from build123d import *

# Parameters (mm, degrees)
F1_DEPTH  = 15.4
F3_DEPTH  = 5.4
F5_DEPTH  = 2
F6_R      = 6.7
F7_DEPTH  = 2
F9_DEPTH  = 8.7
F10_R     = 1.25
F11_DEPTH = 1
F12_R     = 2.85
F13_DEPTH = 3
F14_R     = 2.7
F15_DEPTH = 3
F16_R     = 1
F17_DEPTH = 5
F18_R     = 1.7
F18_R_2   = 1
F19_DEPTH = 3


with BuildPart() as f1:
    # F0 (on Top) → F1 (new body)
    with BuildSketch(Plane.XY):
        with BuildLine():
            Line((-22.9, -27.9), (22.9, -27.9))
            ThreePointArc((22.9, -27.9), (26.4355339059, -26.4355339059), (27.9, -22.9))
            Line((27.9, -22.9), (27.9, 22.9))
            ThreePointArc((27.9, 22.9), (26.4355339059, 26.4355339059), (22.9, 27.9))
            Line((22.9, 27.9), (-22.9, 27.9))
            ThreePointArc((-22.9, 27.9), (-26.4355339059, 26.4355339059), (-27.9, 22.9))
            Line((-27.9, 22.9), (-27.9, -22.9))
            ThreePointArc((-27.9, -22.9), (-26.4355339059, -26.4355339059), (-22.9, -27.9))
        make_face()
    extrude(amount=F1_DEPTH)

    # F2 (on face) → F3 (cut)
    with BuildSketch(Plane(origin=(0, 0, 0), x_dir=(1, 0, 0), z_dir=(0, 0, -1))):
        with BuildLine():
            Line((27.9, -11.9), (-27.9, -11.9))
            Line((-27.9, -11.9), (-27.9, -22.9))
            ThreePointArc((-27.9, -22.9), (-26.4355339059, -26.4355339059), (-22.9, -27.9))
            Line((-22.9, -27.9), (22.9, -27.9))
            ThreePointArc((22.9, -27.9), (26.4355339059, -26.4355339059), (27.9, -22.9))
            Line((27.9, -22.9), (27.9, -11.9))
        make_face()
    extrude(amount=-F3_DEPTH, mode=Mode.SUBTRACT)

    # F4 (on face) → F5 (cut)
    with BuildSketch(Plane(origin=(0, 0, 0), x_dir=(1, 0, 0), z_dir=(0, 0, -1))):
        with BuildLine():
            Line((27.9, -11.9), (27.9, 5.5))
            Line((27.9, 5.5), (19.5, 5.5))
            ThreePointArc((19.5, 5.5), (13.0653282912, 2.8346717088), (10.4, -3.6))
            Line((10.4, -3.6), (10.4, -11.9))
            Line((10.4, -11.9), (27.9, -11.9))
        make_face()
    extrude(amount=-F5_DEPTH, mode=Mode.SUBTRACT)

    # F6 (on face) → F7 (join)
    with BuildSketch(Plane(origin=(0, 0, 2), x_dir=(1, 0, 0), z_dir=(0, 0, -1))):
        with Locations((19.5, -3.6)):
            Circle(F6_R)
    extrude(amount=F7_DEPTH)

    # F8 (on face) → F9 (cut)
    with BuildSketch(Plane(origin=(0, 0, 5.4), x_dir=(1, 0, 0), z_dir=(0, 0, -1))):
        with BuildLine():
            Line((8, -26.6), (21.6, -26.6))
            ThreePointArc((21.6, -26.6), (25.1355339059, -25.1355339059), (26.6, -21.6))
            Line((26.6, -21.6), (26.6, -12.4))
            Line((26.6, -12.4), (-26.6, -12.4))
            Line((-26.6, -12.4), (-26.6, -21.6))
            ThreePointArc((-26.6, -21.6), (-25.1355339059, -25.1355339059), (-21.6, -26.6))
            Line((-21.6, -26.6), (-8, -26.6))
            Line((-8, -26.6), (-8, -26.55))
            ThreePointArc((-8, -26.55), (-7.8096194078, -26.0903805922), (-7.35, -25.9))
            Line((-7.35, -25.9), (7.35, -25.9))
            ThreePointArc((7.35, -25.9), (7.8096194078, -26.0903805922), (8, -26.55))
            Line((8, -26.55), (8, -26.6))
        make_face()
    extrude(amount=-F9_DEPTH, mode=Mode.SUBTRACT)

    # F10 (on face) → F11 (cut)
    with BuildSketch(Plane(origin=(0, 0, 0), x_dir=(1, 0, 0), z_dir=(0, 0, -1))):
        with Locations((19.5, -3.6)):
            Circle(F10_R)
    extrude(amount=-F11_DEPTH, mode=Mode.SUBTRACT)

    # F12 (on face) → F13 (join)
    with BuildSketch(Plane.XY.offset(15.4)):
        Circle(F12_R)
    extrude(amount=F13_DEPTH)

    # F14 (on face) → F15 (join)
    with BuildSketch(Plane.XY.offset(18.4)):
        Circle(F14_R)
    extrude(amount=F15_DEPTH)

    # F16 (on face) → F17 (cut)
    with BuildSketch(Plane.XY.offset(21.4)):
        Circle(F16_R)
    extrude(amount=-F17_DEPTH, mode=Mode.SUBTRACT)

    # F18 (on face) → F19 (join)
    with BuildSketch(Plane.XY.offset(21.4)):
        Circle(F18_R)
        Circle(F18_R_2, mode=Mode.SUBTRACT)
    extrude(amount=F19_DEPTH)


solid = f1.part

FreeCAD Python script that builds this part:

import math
import FreeCAD as App
import Part
import Sketcher
Q = App.Units.Quantity

doc = App.newDocument("Part")
body = doc.addObject("PartDesign::Body", "Body")

sketch1 = body.newObject("Sketcher::SketchObject", "Sketch")
sketch1.AttachmentSupport = (doc.getObject("XY_Plane"), [""])
sketch1.MapMode = "FlatFace"
sketch1.addGeometry(Part.LineSegment(App.Vector(-23, -28, 0), App.Vector(23, -28, 0)), False)
sketch1.addGeometry(Part.ArcOfCircle(Part.Circle(App.Vector(23, -23, 0), App.Vector(0, 0, 1), 5), math.radians(-90), math.radians(0)), False)
sketch1.addGeometry(Part.LineSegment(App.Vector(28, -23, 0), App.Vector(28, 23, 0)), False)
sketch1.addGeometry(Part.ArcOfCircle(Part.Circle(App.Vector(23, 23, 0), App.Vector(0, 0, 1), 5), math.radians(0), math.radians(90)), False)
sketch1.addGeometry(Part.LineSegment(App.Vector(23, 28, 0), App.Vector(-23, 28, 0)), False)
sketch1.addGeometry(Part.ArcOfCircle(Part.Circle(App.Vector(-23, 23, 0), App.Vector(0, 0, 1), 5), math.radians(90), math.radians(180)), False)
sketch1.addGeometry(Part.LineSegment(App.Vector(-28, 23, 0), App.Vector(-28, -23, 0)), False)
sketch1.addGeometry(Part.ArcOfCircle(Part.Circle(App.Vector(-23, -23, 0), App.Vector(0, 0, 1), 5), math.radians(180), math.radians(270)), False)
sketch1.addConstraint(Sketcher.Constraint("Tangent", 0, 2, 1, 1))
sketch1.addConstraint(Sketcher.Constraint("Tangent", 1, 2, 2, 1))
sketch1.addConstraint(Sketcher.Constraint("Tangent", 2, 2, 3, 1))
sketch1.addConstraint(Sketcher.Constraint("Tangent", 3, 2, 4, 1))
sketch1.addConstraint(Sketcher.Constraint("Tangent", 4, 2, 5, 1))
sketch1.addConstraint(Sketcher.Constraint("Tangent", 5, 2, 6, 1))
sketch1.addConstraint(Sketcher.Constraint("Tangent", 6, 2, 7, 1))
sketch1.addConstraint(Sketcher.Constraint("Tangent", 7, 2, 0, 1))
sketch1.addConstraint(Sketcher.Constraint("Horizontal", 0))
sketch1.addConstraint(Sketcher.Constraint("Vertical", 2))
sketch1.addConstraint(Sketcher.Constraint("Horizontal", 4))
sketch1.addConstraint(Sketcher.Constraint("Vertical", 6))
sketch1.addConstraint(Sketcher.Constraint("Equal", 1, 3))
sketch1.addConstraint(Sketcher.Constraint("Equal", 3, 5))
sketch1.addConstraint(Sketcher.Constraint("Equal", 5, 7))
sketch1.addConstraint(Sketcher.Constraint("Symmetric", 1, 3, 5, 3, -1, 1))
sketch1.addConstraint(Sketcher.Constraint("Equal", 4, 2))
sketch1.addConstraint(Sketcher.Constraint("Radius", 1, Q("5 mm")))
sketch1.addConstraint(Sketcher.Constraint("DistanceX", 0, 1, 0, 2, Q("45.8 mm")))
pad1 = body.newObject("PartDesign::Pad", "Pad")
pad1.Profile = sketch1
pad1.Length = 15.4

sketch2 = body.newObject("Sketcher::SketchObject", "Sketch001")
sketch2.AttachmentSupport = (doc.getObject("XY_Plane"), [""])
sketch2.MapMode = "FlatFace"
sketch2.addGeometry(Part.LineSegment(App.Vector(28, 12, 0), App.Vector(-28, 12, 0)), False)
sketch2.addGeometry(Part.LineSegment(App.Vector(-28, 12, 0), App.Vector(-28, 23, 0)), False)
sketch2.addGeometry(Part.ArcOfCircle(Part.Circle(App.Vector(-23, 23, 0), App.Vector(0, 0, 1), 5), math.radians(90), math.radians(180)), False)
sketch2.addGeometry(Part.LineSegment(App.Vector(-23, 28, 0), App.Vector(23, 28, 0)), False)
sketch2.addGeometry(Part.ArcOfCircle(Part.Circle(App.Vector(23, 23, 0), App.Vector(0, 0, 1), 5), math.radians(0), math.radians(90)), False)
sketch2.addGeometry(Part.LineSegment(App.Vector(28, 23, 0), App.Vector(28, 12, 0)), False)
sketch2.addConstraint(Sketcher.Constraint("Coincident", 0, 2, 1, 1))
sketch2.addConstraint(Sketcher.Constraint("Tangent", 1, 2, 2, 2))
sketch2.addConstraint(Sketcher.Constraint("Tangent", 2, 1, 3, 1))
sketch2.addConstraint(Sketcher.Constraint("Tangent", 3, 2, 4, 2))
sketch2.addConstraint(Sketcher.Constraint("Tangent", 4, 1, 5, 1))
sketch2.addConstraint(Sketcher.Constraint("Coincident", 5, 2, 0, 1))
sketch2.addConstraint(Sketcher.Constraint("Horizontal", 0))
sketch2.addConstraint(Sketcher.Constraint("Vertical", 1))
sketch2.addConstraint(Sketcher.Constraint("Horizontal", 3))
sketch2.addConstraint(Sketcher.Constraint("Vertical", 5))
sketch2.addConstraint(Sketcher.Constraint("Equal", 2, 4))
sketch2.addConstraint(Sketcher.Constraint("Radius", 2, Q("5 mm")))
sketch2.addConstraint(Sketcher.Constraint("DistanceY", 1, 1, 1, 2, Q("11 mm")))
sketch2.addConstraint(Sketcher.Constraint("DistanceX", 0, 2, 0, 1, Q("55.8 mm")))
sketch2.addConstraint(Sketcher.Constraint("DistanceX", 2, 3, -1, 1, Q("22.9 mm")))
sketch2.addConstraint(Sketcher.Constraint("DistanceY", -1, 1, 2, 3, Q("22.9 mm")))
pocket1 = body.newObject("PartDesign::Pocket", "Pocket")
pocket1.Profile = sketch2
pocket1.Length = 5.4
pocket1.Reversed = True

sketch3 = body.newObject("Sketcher::SketchObject", "Sketch002")
sketch3.AttachmentSupport = (doc.getObject("XY_Plane"), [""])
sketch3.MapMode = "FlatFace"
sketch3.addGeometry(Part.LineSegment(App.Vector(28, 12, 0), App.Vector(28, -6, 0)), False)
sketch3.addGeometry(Part.LineSegment(App.Vector(28, -6, 0), App.Vector(20, -6, 0)), False)
sketch3.addGeometry(Part.ArcOfCircle(Part.Circle(App.Vector(20, 4, 0), App.Vector(0, 0, 1), 9), math.radians(180), math.radians(270)), False)
sketch3.addGeometry(Part.LineSegment(App.Vector(10, 4, 0), App.Vector(10, 12, 0)), False)
sketch3.addGeometry(Part.LineSegment(App.Vector(10, 12, 0), App.Vector(28, 12, 0)), False)
sketch3.addConstraint(Sketcher.Constraint("Coincident", 0, 2, 1, 1))
sketch3.addConstraint(Sketcher.Constraint("Tangent", 1, 2, 2, 2))
sketch3.addConstraint(Sketcher.Constraint("Tangent", 2, 1, 3, 1))
sketch3.addConstraint(Sketcher.Constraint("Coincident", 3, 2, 4, 1))
sketch3.addConstraint(Sketcher.Constraint("Coincident", 4, 2, 0, 1))
sketch3.addConstraint(Sketcher.Constraint("Vertical", 0))
sketch3.addConstraint(Sketcher.Constraint("Horizontal", 1))
sketch3.addConstraint(Sketcher.Constraint("Vertical", 3))
sketch3.addConstraint(Sketcher.Constraint("Horizontal", 4))
sketch3.addConstraint(Sketcher.Constraint("Radius", 2, Q("9.1 mm")))
sketch3.addConstraint(Sketcher.Constraint("DistanceX", 1, 2, 1, 1, Q("8.4 mm")))
sketch3.addConstraint(Sketcher.Constraint("DistanceY", 0, 2, 0, 1, Q("17.4 mm")))
sketch3.addConstraint(Sketcher.Constraint("DistanceX", -1, 1, 2, 3, Q("19.5 mm")))
sketch3.addConstraint(Sketcher.Constraint("DistanceY", -1, 1, 2, 3, Q("3.6 mm")))
pocket2 = body.newObject("PartDesign::Pocket", "Pocket001")
pocket2.Profile = sketch3
pocket2.Length = 2
pocket2.Reversed = True

sketch4 = body.newObject("Sketcher::SketchObject", "Sketch003")
sketch4.AttachmentSupport = (doc.getObject("XY_Plane"), [""])
sketch4.MapMode = "FlatFace"
sketch4.AttachmentOffset = App.Placement(App.Vector(0, 0, 2), App.Rotation())
sketch4.addGeometry(Part.Circle(App.Vector(20, 4, 0), App.Vector(0, 0, 1), 7), False)
sketch4.addConstraint(Sketcher.Constraint("Diameter", 0, Q("13.4 mm")))
sketch4.addConstraint(Sketcher.Constraint("DistanceX", -1, 1, 0, 3, Q("19.5 mm")))
sketch4.addConstraint(Sketcher.Constraint("DistanceY", -1, 1, 0, 3, Q("3.6 mm")))
pad2 = body.newObject("PartDesign::Pad", "Pad001")
pad2.Profile = sketch4
pad2.Length = 2
pad2.Reversed = True

sketch5 = body.newObject("Sketcher::SketchObject", "Sketch004")
sketch5.AttachmentSupport = (doc.getObject("XY_Plane"), [""])
sketch5.MapMode = "FlatFace"
sketch5.AttachmentOffset = App.Placement(App.Vector(0, 0, 5.4), App.Rotation())
sketch5.addGeometry(Part.LineSegment(App.Vector(8, 26.6, 0), App.Vector(21.6, 26.6, 0)), False)
sketch5.addGeometry(Part.ArcOfCircle(Part.Circle(App.Vector(21.6, 21.6, 0), App.Vector(0, 0, 1), 5), math.radians(0), math.radians(90)), False)
sketch5.addGeometry(Part.LineSegment(App.Vector(26.6, 21.6, 0), App.Vector(26.6, 12.4, 0)), False)
sketch5.addGeometry(Part.LineSegment(App.Vector(26.6, 12.4, 0), App.Vector(-26.6, 12.4, 0)), False)
sketch5.addGeometry(Part.LineSegment(App.Vector(-26.6, 12.4, 0), App.Vector(-26.6, 21.6, 0)), False)
sketch5.addGeometry(Part.ArcOfCircle(Part.Circle(App.Vector(-21.6, 21.6, 0), App.Vector(0, 0, 1), 5), math.radians(90), math.radians(180)), False)
sketch5.addGeometry(Part.LineSegment(App.Vector(-21.6, 26.6, 0), App.Vector(-8, 26.6, 0)), False)
sketch5.addGeometry(Part.LineSegment(App.Vector(-8, 26.6, 0), App.Vector(-8, 26.55, 0)), False)
sketch5.addGeometry(Part.ArcOfCircle(Part.Circle(App.Vector(-7.35, 26.55, 0), App.Vector(0, 0, 1), 0.65), math.radians(180), math.radians(270)), False)
sketch5.addGeometry(Part.LineSegment(App.Vector(-7.35, 25.9, 0), App.Vector(7.35, 25.9, 0)), False)
sketch5.addGeometry(Part.ArcOfCircle(Part.Circle(App.Vector(7.35, 26.55, 0), App.Vector(0, 0, 1), 0.65), math.radians(-90), math.radians(0)), False)
sketch5.addGeometry(Part.LineSegment(App.Vector(8, 26.55, 0), App.Vector(8, 26.6, 0)), False)
sketch5.addConstraint(Sketcher.Constraint("Tangent", 0, 2, 1, 2))
sketch5.addConstraint(Sketcher.Constraint("Tangent", 1, 1, 2, 1))
sketch5.addConstraint(Sketcher.Constraint("Coincident", 2, 2, 3, 1))
sketch5.addConstraint(Sketcher.Constraint("Coincident", 3, 2, 4, 1))
sketch5.addConstraint(Sketcher.Constraint("Tangent", 4, 2, 5, 2))
sketch5.addConstraint(Sketcher.Constraint("Tangent", 5, 1, 6, 1))
sketch5.addConstraint(Sketcher.Constraint("Coincident", 6, 2, 7, 1))
sketch5.addConstraint(Sketcher.Constraint("Tangent", 7, 2, 8, 1))
sketch5.addConstraint(Sketcher.Constraint("Tangent", 8, 2, 9, 1))
sketch5.addConstraint(Sketcher.Constraint("Tangent", 9, 2, 10, 1))
sketch5.addConstraint(Sketcher.Constraint("Tangent", 10, 2, 11, 1))
sketch5.addConstraint(Sketcher.Constraint("Coincident", 11, 2, 0, 1))
sketch5.addConstraint(Sketcher.Constraint("Horizontal", 0))
sketch5.addConstraint(Sketcher.Constraint("Vertical", 2))
sketch5.addConstraint(Sketcher.Constraint("Horizontal", 3))
sketch5.addConstraint(Sketcher.Constraint("Vertical", 4))
sketch5.addConstraint(Sketcher.Constraint("Horizontal", 6))
sketch5.addConstraint(Sketcher.Constraint("Vertical", 7))
sketch5.addConstraint(Sketcher.Constraint("Horizontal", 9))
sketch5.addConstraint(Sketcher.Constraint("Vertical", 11))
sketch5.addConstraint(Sketcher.Constraint("Equal", 1, 5))
sketch5.addConstraint(Sketcher.Constraint("Equal", 8, 10))
sketch5.addConstraint(Sketcher.Constraint("Symmetric", 1, 3, 5, 3, -2))
sketch5.addConstraint(Sketcher.Constraint("Equal", 0, 6))
sketch5.addConstraint(Sketcher.Constraint("Radius", 1, Q("5 mm")))
sketch5.addConstraint(Sketcher.Constraint("Radius", 8, Q("0.65 mm")))
sketch5.addConstraint(Sketcher.Constraint("DistanceX", 0, 1, 0, 2, Q("13.6 mm")))
sketch5.addConstraint(Sketcher.Constraint("DistanceX", 3, 2, 3, 1, Q("53.2 mm")))
sketch5.addConstraint(Sketcher.Constraint("DistanceY", 2, 2, 2, 1, Q("9.2 mm")))
sketch5.addConstraint(Sketcher.Constraint("DistanceY", 7, 2, 7, 1, Q("0.05 mm")))
sketch5.addConstraint(Sketcher.Constraint("DistanceY", -1, 1, 1, 3, Q("21.6 mm")))
pocket3 = body.newObject("PartDesign::Pocket", "Pocket002")
pocket3.Profile = sketch5
pocket3.Length = 8.7
pocket3.Reversed = True

sketch6 = body.newObject("Sketcher::SketchObject", "Sketch005")
sketch6.AttachmentSupport = (doc.getObject("XY_Plane"), [""])
sketch6.MapMode = "FlatFace"
sketch6.addGeometry(Part.Circle(App.Vector(19.5, 3.6, 0), App.Vector(0, 0, 1), 1.2), False)
sketch6.addConstraint(Sketcher.Constraint("Diameter", 0, Q("2.5 mm")))
sketch6.addConstraint(Sketcher.Constraint("DistanceX", -1, 1, 0, 3, Q("19.5 mm")))
sketch6.addConstraint(Sketcher.Constraint("DistanceY", -1, 1, 0, 3, Q("3.6 mm")))
pocket4 = body.newObject("PartDesign::Pocket", "Pocket003")
pocket4.Profile = sketch6
pocket4.Length = 1
pocket4.Reversed = True

sketch7 = body.newObject("Sketcher::SketchObject", "Sketch006")
sketch7.AttachmentSupport = (doc.getObject("XY_Plane"), [""])
sketch7.MapMode = "FlatFace"
sketch7.AttachmentOffset = App.Placement(App.Vector(0, 0, 15.4), App.Rotation())
sketch7.addGeometry(Part.Circle(App.Vector(0, 0, 0), App.Vector(0, 0, 1), 2.9), False)
sketch7.addConstraint(Sketcher.Constraint("Coincident", 0, 3, -1, 1))
sketch7.addConstraint(Sketcher.Constraint("Diameter", 0, Q("5.7 mm")))
pad3 = body.newObject("PartDesign::Pad", "Pad002")
pad3.Profile = sketch7
pad3.Length = 3

sketch8 = body.newObject("Sketcher::SketchObject", "Sketch007")
sketch8.AttachmentSupport = (doc.getObject("XY_Plane"), [""])
sketch8.MapMode = "FlatFace"
sketch8.AttachmentOffset = App.Placement(App.Vector(0, 0, 18.4), App.Rotation())
sketch8.addGeometry(Part.Circle(App.Vector(0, 0, 0), App.Vector(0, 0, 1), 2.7), False)
sketch8.addConstraint(Sketcher.Constraint("Coincident", 0, 3, -1, 1))
sketch8.addConstraint(Sketcher.Constraint("Diameter", 0, Q("5.4 mm")))
pad4 = body.newObject("PartDesign::Pad", "Pad003")
pad4.Profile = sketch8
pad4.Length = 3

sketch9 = body.newObject("Sketcher::SketchObject", "Sketch008")
sketch9.AttachmentSupport = (doc.getObject("XY_Plane"), [""])
sketch9.MapMode = "FlatFace"
sketch9.AttachmentOffset = App.Placement(App.Vector(0, 0, 21.4), App.Rotation())
sketch9.addGeometry(Part.Circle(App.Vector(0, 0, 0), App.Vector(0, 0, 1), 1), False)
sketch9.addConstraint(Sketcher.Constraint("Coincident", 0, 3, -1, 1))
sketch9.addConstraint(Sketcher.Constraint("Diameter", 0, Q("2 mm")))
pocket5 = body.newObject("PartDesign::Pocket", "Pocket004")
pocket5.Profile = sketch9
pocket5.Length = 5

sketch10 = body.newObject("Sketcher::SketchObject", "Sketch009")
sketch10.AttachmentSupport = (doc.getObject("XY_Plane"), [""])
sketch10.MapMode = "FlatFace"
sketch10.AttachmentOffset = App.Placement(App.Vector(0, 0, 21.4), App.Rotation())
sketch10.addGeometry(Part.Circle(App.Vector(0, 0, 0), App.Vector(0, 0, 1), 1.7), False)
sketch10.addGeometry(Part.Circle(App.Vector(0, 0, 0), App.Vector(0, 0, 1), 1), False)
sketch10.addConstraint(Sketcher.Constraint("Coincident", 0, 3, -1, 1))
sketch10.addConstraint(Sketcher.Constraint("Coincident", 1, 3, -1, 1))
sketch10.addConstraint(Sketcher.Constraint("Diameter", 1, Q("2 mm")))
sketch10.addConstraint(Sketcher.Constraint("Diameter", 0, Q("3.4 mm")))
pad5 = body.newObject("PartDesign::Pad", "Pad004")
pad5.Profile = sketch10
pad5.Length = 3

doc.recompute()
